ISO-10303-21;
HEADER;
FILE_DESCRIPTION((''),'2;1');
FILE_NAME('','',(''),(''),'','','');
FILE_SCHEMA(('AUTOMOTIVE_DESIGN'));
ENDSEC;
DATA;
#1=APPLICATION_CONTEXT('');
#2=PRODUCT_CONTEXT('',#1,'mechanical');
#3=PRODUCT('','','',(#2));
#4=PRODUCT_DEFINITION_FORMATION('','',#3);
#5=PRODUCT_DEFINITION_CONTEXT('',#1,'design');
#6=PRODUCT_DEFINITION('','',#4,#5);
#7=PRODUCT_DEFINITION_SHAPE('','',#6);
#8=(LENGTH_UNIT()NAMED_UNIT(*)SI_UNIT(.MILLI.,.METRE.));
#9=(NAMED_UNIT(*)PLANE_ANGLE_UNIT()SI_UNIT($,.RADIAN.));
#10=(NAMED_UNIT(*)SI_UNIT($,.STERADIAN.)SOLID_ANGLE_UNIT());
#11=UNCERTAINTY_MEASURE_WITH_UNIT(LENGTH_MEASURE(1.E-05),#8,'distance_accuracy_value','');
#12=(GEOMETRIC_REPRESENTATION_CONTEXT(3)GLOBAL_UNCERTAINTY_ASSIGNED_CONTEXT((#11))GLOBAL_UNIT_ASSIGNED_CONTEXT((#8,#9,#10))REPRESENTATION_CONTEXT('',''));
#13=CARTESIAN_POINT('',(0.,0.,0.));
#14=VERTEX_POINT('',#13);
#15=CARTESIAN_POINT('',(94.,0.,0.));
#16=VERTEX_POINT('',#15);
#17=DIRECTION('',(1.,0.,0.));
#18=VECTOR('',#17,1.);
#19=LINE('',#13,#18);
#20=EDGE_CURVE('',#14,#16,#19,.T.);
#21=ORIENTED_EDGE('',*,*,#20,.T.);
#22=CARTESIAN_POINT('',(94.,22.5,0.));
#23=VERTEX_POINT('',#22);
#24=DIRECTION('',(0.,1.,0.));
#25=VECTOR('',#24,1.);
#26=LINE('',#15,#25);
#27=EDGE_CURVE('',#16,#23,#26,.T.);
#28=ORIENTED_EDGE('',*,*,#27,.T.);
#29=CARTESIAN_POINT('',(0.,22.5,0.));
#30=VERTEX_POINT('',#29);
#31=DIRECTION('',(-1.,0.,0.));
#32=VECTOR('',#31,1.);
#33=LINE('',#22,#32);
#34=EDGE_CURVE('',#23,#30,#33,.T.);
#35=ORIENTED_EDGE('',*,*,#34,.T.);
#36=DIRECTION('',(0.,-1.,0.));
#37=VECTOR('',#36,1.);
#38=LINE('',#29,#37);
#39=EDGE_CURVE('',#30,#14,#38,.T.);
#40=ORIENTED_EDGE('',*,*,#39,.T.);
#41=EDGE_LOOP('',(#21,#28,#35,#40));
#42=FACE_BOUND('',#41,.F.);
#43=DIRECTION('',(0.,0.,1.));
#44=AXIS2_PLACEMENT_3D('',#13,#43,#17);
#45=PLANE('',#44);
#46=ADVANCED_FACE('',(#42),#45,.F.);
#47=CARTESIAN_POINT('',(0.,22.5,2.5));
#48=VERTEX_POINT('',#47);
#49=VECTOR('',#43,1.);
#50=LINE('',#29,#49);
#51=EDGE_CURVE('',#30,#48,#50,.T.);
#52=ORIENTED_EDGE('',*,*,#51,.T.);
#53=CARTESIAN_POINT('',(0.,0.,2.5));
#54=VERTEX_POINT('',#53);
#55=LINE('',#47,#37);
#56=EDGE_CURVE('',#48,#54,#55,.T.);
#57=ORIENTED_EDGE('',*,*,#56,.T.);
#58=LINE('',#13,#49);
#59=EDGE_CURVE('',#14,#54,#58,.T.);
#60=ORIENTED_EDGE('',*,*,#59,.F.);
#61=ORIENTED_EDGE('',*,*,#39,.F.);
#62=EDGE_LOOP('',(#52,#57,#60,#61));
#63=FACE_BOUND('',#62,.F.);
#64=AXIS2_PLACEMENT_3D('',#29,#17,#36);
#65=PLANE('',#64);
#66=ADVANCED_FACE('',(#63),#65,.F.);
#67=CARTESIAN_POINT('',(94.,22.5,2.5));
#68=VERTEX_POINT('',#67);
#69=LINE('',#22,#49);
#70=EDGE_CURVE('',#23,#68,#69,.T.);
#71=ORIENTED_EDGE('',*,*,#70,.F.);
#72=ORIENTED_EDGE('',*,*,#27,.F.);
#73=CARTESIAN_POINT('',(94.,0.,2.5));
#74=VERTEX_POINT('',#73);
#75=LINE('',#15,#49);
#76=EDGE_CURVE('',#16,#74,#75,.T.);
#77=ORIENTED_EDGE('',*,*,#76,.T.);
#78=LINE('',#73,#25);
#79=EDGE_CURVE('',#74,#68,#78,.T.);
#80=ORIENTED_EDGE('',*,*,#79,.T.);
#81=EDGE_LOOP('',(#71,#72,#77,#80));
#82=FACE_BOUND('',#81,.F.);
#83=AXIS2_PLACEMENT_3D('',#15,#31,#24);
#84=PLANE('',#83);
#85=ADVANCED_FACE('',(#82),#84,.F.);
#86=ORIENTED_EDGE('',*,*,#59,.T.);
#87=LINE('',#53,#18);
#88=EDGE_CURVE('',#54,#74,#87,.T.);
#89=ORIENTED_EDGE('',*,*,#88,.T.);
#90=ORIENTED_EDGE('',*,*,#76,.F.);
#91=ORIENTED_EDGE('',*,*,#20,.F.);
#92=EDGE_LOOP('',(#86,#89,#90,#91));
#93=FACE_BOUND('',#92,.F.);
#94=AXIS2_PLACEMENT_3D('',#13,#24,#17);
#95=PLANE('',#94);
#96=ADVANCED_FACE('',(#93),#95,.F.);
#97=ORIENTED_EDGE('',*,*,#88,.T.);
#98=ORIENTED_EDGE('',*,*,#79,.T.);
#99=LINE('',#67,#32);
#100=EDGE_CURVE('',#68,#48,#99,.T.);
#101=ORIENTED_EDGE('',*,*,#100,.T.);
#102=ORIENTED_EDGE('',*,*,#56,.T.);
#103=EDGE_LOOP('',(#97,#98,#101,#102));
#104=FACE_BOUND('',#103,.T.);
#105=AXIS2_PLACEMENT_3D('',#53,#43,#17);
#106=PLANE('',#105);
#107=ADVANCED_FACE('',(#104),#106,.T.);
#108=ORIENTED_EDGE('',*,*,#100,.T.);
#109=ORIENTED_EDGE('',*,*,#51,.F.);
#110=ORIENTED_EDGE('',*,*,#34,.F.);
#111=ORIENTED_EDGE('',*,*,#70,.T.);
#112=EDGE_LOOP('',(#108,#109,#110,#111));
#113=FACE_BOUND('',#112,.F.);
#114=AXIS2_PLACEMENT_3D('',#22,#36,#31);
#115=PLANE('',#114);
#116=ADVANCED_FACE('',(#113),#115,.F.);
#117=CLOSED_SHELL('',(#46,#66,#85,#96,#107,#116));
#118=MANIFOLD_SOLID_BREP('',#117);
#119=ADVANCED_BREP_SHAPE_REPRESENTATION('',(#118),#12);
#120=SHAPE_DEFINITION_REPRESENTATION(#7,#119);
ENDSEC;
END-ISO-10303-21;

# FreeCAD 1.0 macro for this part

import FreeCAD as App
import Part
import Sketcher
from FreeCAD import Vector


def add_polygon(sketch, points):
    """Adds a closed chain of lines whose ends are joined by coincident constraints."""
    first, n = sketch.GeometryCount, len(points)
    for a, b in zip(points, points[1:] + points[:1]):
        sketch.addGeometry(Part.LineSegment(App.Vector(*a, 0), App.Vector(*b, 0)), False)
    for i in range(n):
        sketch.addConstraint(Sketcher.Constraint("Coincident", first + i, 2, first + (i + 1) % n, 1))

doc = App.newDocument("Part")
body = doc.addObject("PartDesign::Body", "Body")

sketch1 = body.newObject("Sketcher::SketchObject", "Sketch")
sketch1.AttachmentSupport = (doc.getObject("XY_Plane"), [""])
sketch1.MapMode = "FlatFace"
add_polygon(sketch1, [(0, 22.5), (0, 0), (94, 0), (94, 22.5)])
sketch1.addConstraint([
    Sketcher.Constraint("Vertical", 0),
    Sketcher.Constraint("Horizontal", 1),
    Sketcher.Constraint("Vertical", 2),
    Sketcher.Constraint("Horizontal", 3),
    Sketcher.Constraint("Coincident", 0, 2, -1, 1),
    Sketcher.Constraint("DistanceX", 1, 1, 1, 2, 94.0),
    Sketcher.Constraint("DistanceY", 0, 2, 0, 1, 22.5),
])
pad1 = body.newObject("PartDesign::Pad", "Pad")
pad1.Profile = sketch1
pad1.Length = 2.5

doc.recompute()
